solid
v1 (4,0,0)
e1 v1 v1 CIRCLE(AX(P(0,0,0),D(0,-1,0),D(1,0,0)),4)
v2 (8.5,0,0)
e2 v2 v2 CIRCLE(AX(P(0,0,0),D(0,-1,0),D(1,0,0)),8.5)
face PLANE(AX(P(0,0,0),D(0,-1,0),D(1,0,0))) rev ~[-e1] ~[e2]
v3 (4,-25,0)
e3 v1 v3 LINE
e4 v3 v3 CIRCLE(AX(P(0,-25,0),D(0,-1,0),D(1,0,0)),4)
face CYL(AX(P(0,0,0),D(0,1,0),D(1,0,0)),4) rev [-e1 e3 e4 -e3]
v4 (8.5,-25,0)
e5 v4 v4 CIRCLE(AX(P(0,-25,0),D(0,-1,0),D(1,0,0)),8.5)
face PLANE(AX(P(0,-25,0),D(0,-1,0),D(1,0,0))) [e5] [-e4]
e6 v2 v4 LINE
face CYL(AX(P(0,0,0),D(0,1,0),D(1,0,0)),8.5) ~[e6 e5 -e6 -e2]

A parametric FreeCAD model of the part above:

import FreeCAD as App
import Part
import Sketcher

V = App.Vector

doc = App.newDocument("Part")
params = doc.addObject("Spreadsheet::Sheet", "Params")
for row, (alias, value) in enumerate([
    ("sketch1_diameter", "17 mm"),
    ("sketch1_diameter2", "8 mm"),
    ("pad1_length", "25 mm"),
], start=1):
    params.set(f"A{row}", alias)
    params.set(f"B{row}", "=" + value)
    params.setAlias(f"B{row}", alias)

body = doc.addObject("PartDesign::Body", "Body")

# Sketch on XZ plane
sketch1 = body.newObject("Sketcher::SketchObject", "Sketch")
sketch1.AttachmentSupport = (doc.getObject("XZ_Plane"), [""])
sketch1.MapMode = "FlatFace"
sketch1.addGeometry([
    Part.Circle(V(0, 0, 0), V(0, 0, 1), 8.5),
    Part.Circle(V(0, 0, 0), V(0, 0, 1), 4),
], False)
sketch1.addConstraint([
    Sketcher.Constraint("Coincident", 0, 3, -1, 1),
    Sketcher.Constraint("Coincident", 1, 3, -1, 1),
    Sketcher.Constraint("Diameter", 0, 17.0),
    Sketcher.Constraint("Diameter", 1, 8.0),
])
sketch1.setExpression("Constraints[2]", "Params.sketch1_diameter")
sketch1.setExpression("Constraints[3]", "Params.sketch1_diameter2")
pad1 = body.newObject("PartDesign::Pad", "Pad")
pad1.Profile = sketch1
pad1.setExpression("Length", "Params.pad1_length")

doc.recompute()
